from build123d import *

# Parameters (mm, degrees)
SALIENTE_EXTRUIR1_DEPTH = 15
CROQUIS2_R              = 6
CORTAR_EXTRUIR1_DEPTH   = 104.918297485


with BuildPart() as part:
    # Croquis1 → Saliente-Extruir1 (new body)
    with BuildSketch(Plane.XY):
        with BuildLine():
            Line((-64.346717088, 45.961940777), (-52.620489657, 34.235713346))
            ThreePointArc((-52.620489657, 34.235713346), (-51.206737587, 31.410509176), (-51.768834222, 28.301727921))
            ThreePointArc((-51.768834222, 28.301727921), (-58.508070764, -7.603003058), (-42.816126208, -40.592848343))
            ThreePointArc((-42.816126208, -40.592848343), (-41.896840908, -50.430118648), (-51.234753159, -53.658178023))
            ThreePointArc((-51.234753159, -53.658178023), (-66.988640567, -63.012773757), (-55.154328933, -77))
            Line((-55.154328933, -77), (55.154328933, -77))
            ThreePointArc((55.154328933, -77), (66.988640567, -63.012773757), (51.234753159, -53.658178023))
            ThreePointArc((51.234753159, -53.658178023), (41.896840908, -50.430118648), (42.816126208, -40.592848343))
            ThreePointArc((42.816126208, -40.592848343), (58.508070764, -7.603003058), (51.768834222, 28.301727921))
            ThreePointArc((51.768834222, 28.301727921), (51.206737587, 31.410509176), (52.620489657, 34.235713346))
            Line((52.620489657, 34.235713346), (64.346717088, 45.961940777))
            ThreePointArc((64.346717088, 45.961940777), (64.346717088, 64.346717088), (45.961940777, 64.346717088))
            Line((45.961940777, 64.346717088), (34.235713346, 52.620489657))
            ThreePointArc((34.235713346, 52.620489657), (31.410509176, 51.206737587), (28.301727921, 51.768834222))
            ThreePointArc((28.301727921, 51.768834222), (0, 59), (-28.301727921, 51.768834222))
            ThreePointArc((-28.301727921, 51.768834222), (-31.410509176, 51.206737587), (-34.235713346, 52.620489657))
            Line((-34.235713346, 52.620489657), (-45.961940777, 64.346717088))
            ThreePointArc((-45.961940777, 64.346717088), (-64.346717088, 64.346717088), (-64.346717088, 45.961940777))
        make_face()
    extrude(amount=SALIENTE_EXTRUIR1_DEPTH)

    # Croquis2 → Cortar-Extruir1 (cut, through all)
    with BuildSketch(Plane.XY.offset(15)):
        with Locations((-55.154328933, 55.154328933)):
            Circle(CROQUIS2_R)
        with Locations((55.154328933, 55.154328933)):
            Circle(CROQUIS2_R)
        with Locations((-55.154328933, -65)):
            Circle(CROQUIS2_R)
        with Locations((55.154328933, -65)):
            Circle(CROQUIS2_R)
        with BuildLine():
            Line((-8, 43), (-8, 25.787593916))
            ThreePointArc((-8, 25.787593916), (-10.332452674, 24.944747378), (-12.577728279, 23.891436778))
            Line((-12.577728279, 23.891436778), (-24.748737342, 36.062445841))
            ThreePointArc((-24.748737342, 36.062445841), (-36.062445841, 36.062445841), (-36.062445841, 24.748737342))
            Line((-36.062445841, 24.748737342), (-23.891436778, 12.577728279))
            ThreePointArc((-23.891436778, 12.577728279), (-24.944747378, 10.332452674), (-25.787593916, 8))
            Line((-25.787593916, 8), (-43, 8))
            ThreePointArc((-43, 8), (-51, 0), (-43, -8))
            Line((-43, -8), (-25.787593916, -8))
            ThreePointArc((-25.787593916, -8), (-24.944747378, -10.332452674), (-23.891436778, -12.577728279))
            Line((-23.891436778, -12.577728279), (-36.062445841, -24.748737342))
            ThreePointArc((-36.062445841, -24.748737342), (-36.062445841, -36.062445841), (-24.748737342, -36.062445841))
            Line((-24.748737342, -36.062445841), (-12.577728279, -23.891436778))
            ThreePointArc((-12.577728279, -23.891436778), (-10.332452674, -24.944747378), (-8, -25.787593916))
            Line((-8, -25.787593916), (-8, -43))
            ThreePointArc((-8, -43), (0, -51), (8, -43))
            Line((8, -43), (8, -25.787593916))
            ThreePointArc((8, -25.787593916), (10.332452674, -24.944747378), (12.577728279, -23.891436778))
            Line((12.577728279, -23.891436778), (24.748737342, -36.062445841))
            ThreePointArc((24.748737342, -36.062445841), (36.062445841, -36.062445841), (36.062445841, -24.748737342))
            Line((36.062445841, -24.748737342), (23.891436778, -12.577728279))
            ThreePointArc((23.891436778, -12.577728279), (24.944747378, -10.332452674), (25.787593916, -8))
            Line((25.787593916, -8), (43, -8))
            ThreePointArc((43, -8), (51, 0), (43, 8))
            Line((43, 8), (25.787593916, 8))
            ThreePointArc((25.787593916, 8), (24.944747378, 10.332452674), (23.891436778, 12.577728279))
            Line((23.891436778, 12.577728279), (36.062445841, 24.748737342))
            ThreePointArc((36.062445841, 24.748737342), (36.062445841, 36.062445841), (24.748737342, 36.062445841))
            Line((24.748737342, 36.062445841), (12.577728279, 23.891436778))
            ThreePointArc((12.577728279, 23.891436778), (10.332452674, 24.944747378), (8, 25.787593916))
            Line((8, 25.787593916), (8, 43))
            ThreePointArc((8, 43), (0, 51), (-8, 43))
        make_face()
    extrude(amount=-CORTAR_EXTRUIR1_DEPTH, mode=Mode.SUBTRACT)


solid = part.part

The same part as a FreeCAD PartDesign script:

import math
import FreeCAD as App
import Part
import Sketcher
Q = App.Units.Quantity

doc = App.newDocument("Part")
body = doc.addObject("PartDesign::Body", "Body")

# Sketch on XY plane
sketch1 = body.newObject("Sketcher::SketchObject", "Sketch")
sketch1.AttachmentSupport = (doc.getObject("XY_Plane"), [""])
sketch1.MapMode = "FlatFace"
sketch1.addGeometry([
    Part.LineSegment(App.Vector(-64.3, 46, 0), App.Vector(-52.6, 34.2, 0)),  # 0
    Part.ArcOfCircle(Part.Circle(App.Vector(-56.2, 30.7, 0), App.Vector(0, 0, 1), 5), math.radians(-29), math.radians(45)),  # 1
    Part.ArcOfCircle(Part.Circle(App.Vector(0, 0, 0), App.Vector(0, 0, 1), 59), math.radians(151), math.radians(223)),  # 2
    Part.ArcOfCircle(Part.Circle(App.Vector(-48.6, -46.1, 0), App.Vector(0, 0, 1), 8), math.radians(-109), math.radians(43)),  # 3
    Part.ArcOfCircle(Part.Circle(App.Vector(-55.2, -65, 0), App.Vector(0, 0, 1), 12), math.radians(71), math.radians(270)),  # 4
    Part.LineSegment(App.Vector(-55.2, -77, 0), App.Vector(55.2, -77, 0)),  # 5
    Part.ArcOfCircle(Part.Circle(App.Vector(55.2, -65, 0), App.Vector(0, 0, 1), 12), math.radians(-90), math.radians(109)),  # 6
    Part.ArcOfCircle(Part.Circle(App.Vector(48.6, -46.1, 0), App.Vector(0, 0, 1), 8), math.radians(137), math.radians(289)),  # 7
    Part.ArcOfCircle(Part.Circle(App.Vector(0, 0, 0), App.Vector(0, 0, 1), 59), math.radians(-43), math.radians(29)),  # 8
    Part.ArcOfCircle(Part.Circle(App.Vector(56.2, 30.7, 0), App.Vector(0, 0, 1), 5), math.radians(135), math.radians(209)),  # 9
    Part.LineSegment(App.Vector(52.6, 34.2, 0), App.Vector(64.3, 46, 0)),  # 10
    Part.ArcOfCircle(Part.Circle(App.Vector(55.2, 55.2, 0), App.Vector(0, 0, 1), 13), math.radians(-45), math.radians(135)),  # 11
    Part.LineSegment(App.Vector(46, 64.3, 0), App.Vector(34.2, 52.6, 0)),  # 12
    Part.ArcOfCircle(Part.Circle(App.Vector(30.7, 56.2, 0), App.Vector(0, 0, 1), 5), math.radians(-119), math.radians(-45)),  # 13
    Part.ArcOfCircle(Part.Circle(App.Vector(0, 0, 0), App.Vector(0, 0, 1), 59), math.radians(61), math.radians(119)),  # 14
    Part.ArcOfCircle(Part.Circle(App.Vector(-30.7, 56.2, 0), App.Vector(0, 0, 1), 5), math.radians(-135), math.radians(-61)),  # 15
    Part.LineSegment(App.Vector(-34.2, 52.6, 0), App.Vector(-46, 64.3, 0)),  # 16
    Part.ArcOfCircle(Part.Circle(App.Vector(-55.2, 55.2, 0), App.Vector(0, 0, 1), 13), math.radians(45), math.radians(225)),  # 17
], False)
sketch1.addConstraint([
    Sketcher.Constraint("Tangent", 0, 2, 1, 2),
    Sketcher.Constraint("Tangent", 1, 1, 2, 1),
    Sketcher.Constraint("Tangent", 2, 2, 3, 2),
    Sketcher.Constraint("Tangent", 3, 1, 4, 1),
    Sketcher.Constraint("Tangent", 4, 2, 5, 1),
    Sketcher.Constraint("Tangent", 5, 2, 6, 1),
    Sketcher.Constraint("Tangent", 6, 2, 7, 2),
    Sketcher.Constraint("Tangent", 7, 1, 8, 1),
    Sketcher.Constraint("Tangent", 8, 2, 9, 2),
    Sketcher.Constraint("Tangent", 9, 1, 10, 1),
    Sketcher.Constraint("Tangent", 10, 2, 11, 1),
    Sketcher.Constraint("Tangent", 11, 2, 12, 1),
    Sketcher.Constraint("Tangent", 12, 2, 13, 2),
    Sketcher.Constraint("Tangent", 13, 1, 14, 1),
    Sketcher.Constraint("Tangent", 14, 2, 15, 2),
    Sketcher.Constraint("Tangent", 15, 1, 16, 1),
    Sketcher.Constraint("Tangent", 16, 2, 17, 1),
    Sketcher.Constraint("Tangent", 17, 2, 0, 1),
    Sketcher.Constraint("Horizontal", 5),
    Sketcher.Constraint("Coincident", 2, 3, -1, 1),
    Sketcher.Constraint("Coincident", 8, 3, -1, 1),
    Sketcher.Constraint("Coincident", 14, 3, -1, 1),
    Sketcher.Constraint("Equal", 4, 6),
    Sketcher.Constraint("Equal", 3, 7),
    Sketcher.Constraint("Equal", 2, 8),
    Sketcher.Constraint("Equal", 1, 9),
    Sketcher.Constraint("Equal", 9, 13),
    Sketcher.Constraint("Equal", 8, 14),
    Sketcher.Constraint("Equal", 13, 15),
    Sketcher.Constraint("Equal", 11, 17),
    Sketcher.Constraint("Symmetric", 11, 3, 17, 3, -2),
    Sketcher.Constraint("Perpendicular", 0, 10),
    Sketcher.Constraint("Parallel", 10, 12),
    Sketcher.Constraint("Perpendicular", 12, 16),
    Sketcher.Constraint("Horizontal", 3, 3, 7, 3),
    Sketcher.Constraint("Horizontal", 1, 3, 9, 3),
    Sketcher.Constraint("Vertical", 6, 3, 11, 3),
    Sketcher.Constraint("Equal", 10, 12),
    Sketcher.Constraint("Radius", 1, Q("5 mm")),
    Sketcher.Constraint("Radius", 2, Q("59 mm")),
    Sketcher.Constraint("Radius", 3, Q("8 mm")),
    Sketcher.Constraint("Radius", 4, Q("12 mm")),
    Sketcher.Constraint("Radius", 11, Q("13 mm")),
    Sketcher.Constraint("DistanceY", 4, 3, -1, 1, Q("65 mm")),
    Sketcher.Constraint("DistanceY", 1, 1, 17, 3, Q("26.852601 mm")),
])
pad1 = body.newObject("PartDesign::Pad", "Pad")
pad1.Profile = sketch1
pad1.Length = 15

# Sketch on XY plane
sketch2 = body.newObject("Sketcher::SketchObject", "Sketch001")
sketch2.AttachmentSupport = (doc.getObject("XY_Plane"), [""])
sketch2.MapMode = "FlatFace"
sketch2.AttachmentOffset = App.Placement(App.Vector(0, 0, 15), App.Rotation())
sketch2.addGeometry([
    Part.Circle(App.Vector(-55.2, 55.2, 0), App.Vector(0, 0, 1), 6),  # 0
    Part.Circle(App.Vector(55.2, 55.2, 0), App.Vector(0, 0, 1), 6),  # 1
    Part.Circle(App.Vector(-55.2, -65, 0), App.Vector(0, 0, 1), 6),  # 2
    Part.Circle(App.Vector(55.2, -65, 0), App.Vector(0, 0, 1), 6),  # 3
    Part.LineSegment(App.Vector(-8, 43, 0), App.Vector(-8, 25.8, 0)),  # 4
    Part.ArcOfCircle(Part.Circle(App.Vector(0, 0, 0), App.Vector(0, 0, 1), 27), math.radians(107.24), math.radians(117.76)),  # 5
    Part.LineSegment(App.Vector(-12.6, 23.9, 0), App.Vector(-24.7, 36.1, 0)),  # 6
    Part.ArcOfCircle(Part.Circle(App.Vector(-30.4, 30.4, 0), App.Vector(0, 0, 1), 8), math.radians(45), math.radians(225)),  # 7
    Part.LineSegment(App.Vector(-36.1, 24.7, 0), App.Vector(-23.9, 12.6, 0)),  # 8
    Part.ArcOfCircle(Part.Circle(App.Vector(0, 0, 0), App.Vector(0, 0, 1), 27), math.radians(152.24), math.radians(162.76)),  # 9
    Part.LineSegment(App.Vector(-25.8, 8, 0), App.Vector(-43, 8, 0)),  # 10
    Part.ArcOfCircle(Part.Circle(App.Vector(-43, 0, 0), App.Vector(0, 0, 1), 8), math.radians(90), math.radians(270)),  # 11
    Part.LineSegment(App.Vector(-43, -8, 0), App.Vector(-25.8, -8, 0)),  # 12
    Part.ArcOfCircle(Part.Circle(App.Vector(0, 0, 0), App.Vector(0, 0, 1), 27), math.radians(-162.76), math.radians(-152.24)),  # 13
    Part.LineSegment(App.Vector(-23.9, -12.6, 0), App.Vector(-36.1, -24.7, 0)),  # 14
    Part.ArcOfCircle(Part.Circle(App.Vector(-30.4, -30.4, 0), App.Vector(0, 0, 1), 8), math.radians(135), math.radians(315)),  # 15
    Part.LineSegment(App.Vector(-24.7, -36.1, 0), App.Vector(-12.6, -23.9, 0)),  # 16
    Part.ArcOfCircle(Part.Circle(App.Vector(0, 0, 0), App.Vector(0, 0, 1), 27), math.radians(-117.76), math.radians(-107.24)),  # 17
    Part.LineSegment(App.Vector(-8, -25.8, 0), App.Vector(-8, -43, 0)),  # 18
    Part.ArcOfCircle(Part.Circle(App.Vector(0, -43, 0), App.Vector(0, 0, 1), 8), math.radians(180), math.radians(360)),  # 19
    Part.LineSegment(App.Vector(8, -43, 0), App.Vector(8, -25.8, 0)),  # 20
    Part.ArcOfCircle(Part.Circle(App.Vector(0, 0, 0), App.Vector(0, 0, 1), 27), math.radians(-72.76), math.radians(-62.24)),  # 21
    Part.LineSegment(App.Vector(12.6, -23.9, 0), App.Vector(24.7, -36.1, 0)),  # 22
    Part.ArcOfCircle(Part.Circle(App.Vector(30.4, -30.4, 0), App.Vector(0, 0, 1), 8), math.radians(-135), math.radians(45)),  # 23
    Part.LineSegment(App.Vector(36.1, -24.7, 0), App.Vector(23.9, -12.6, 0)),  # 24
    Part.ArcOfCircle(Part.Circle(App.Vector(0, 0, 0), App.Vector(0, 0, 1), 27), math.radians(-27.76), math.radians(-17.24)),  # 25
    Part.LineSegment(App.Vector(25.8, -8, 0), App.Vector(43, -8, 0)),  # 26
    Part.ArcOfCircle(Part.Circle(App.Vector(43, 0, 0), App.Vector(0, 0, 1), 8), math.radians(-90), math.radians(90)),  # 27
    Part.LineSegment(App.Vector(43, 8, 0), App.Vector(25.8, 8, 0)),  # 28
    Part.ArcOfCircle(Part.Circle(App.Vector(0, 0, 0), App.Vector(0, 0, 1), 27), math.radians(17.24), math.radians(27.76)),  # 29
    Part.LineSegment(App.Vector(23.9, 12.6, 0), App.Vector(36.1, 24.7, 0)),  # 30
    Part.ArcOfCircle(Part.Circle(App.Vector(30.4, 30.4, 0), App.Vector(0, 0, 1), 8), math.radians(-45), math.radians(135)),  # 31
    Part.LineSegment(App.Vector(24.7, 36.1, 0), App.Vector(12.6, 23.9, 0)),  # 32
    Part.ArcOfCircle(Part.Circle(App.Vector(0, 0, 0), App.Vector(0, 0, 1), 27), math.radians(62.24), math.radians(72.76)),  # 33
    Part.LineSegment(App.Vector(8, 25.8, 0), App.Vector(8, 43, 0)),  # 34
    Part.ArcOfCircle(Part.Circle(App.Vector(0, 43, 0), App.Vector(0, 0, 1), 8), math.radians(0), math.radians(180)),  # 35
], False)
sketch2.addConstraint([
    Sketcher.Constraint("Coincident", 4, 2, 5, 1),
    Sketcher.Constraint("Coincident", 5, 2, 6, 1),
    Sketcher.Constraint("Tangent", 6, 2, 7, 1),
    Sketcher.Constraint("Tangent", 7, 2, 8, 1),
    Sketcher.Constraint("Coincident", 8, 2, 9, 1),
    Sketcher.Constraint("Coincident", 9, 2, 10, 1),
    Sketcher.Constraint("Tangent", 10, 2, 11, 1),
    Sketcher.Constraint("Tangent", 11, 2, 12, 1),
    Sketcher.Constraint("Coincident", 12, 2, 13, 1),
    Sketcher.Constraint("Coincident", 13, 2, 14, 1),
    Sketcher.Constraint("Tangent", 14, 2, 15, 1),
    Sketcher.Constraint("Tangent", 15, 2, 16, 1),
    Sketcher.Constraint("Coincident", 16, 2, 17, 1),
    Sketcher.Constraint("Coincident", 17, 2, 18, 1),
    Sketcher.Constraint("Tangent", 18, 2, 19, 1),
    Sketcher.Constraint("Tangent", 19, 2, 20, 1),
    Sketcher.Constraint("Coincident", 20, 2, 21, 1),
    Sketcher.Constraint("Coincident", 21, 2, 22, 1),
    Sketcher.Constraint("Tangent", 22, 2, 23, 1),
    Sketcher.Constraint("Tangent", 23, 2, 24, 1),
    Sketcher.Constraint("Coincident", 24, 2, 25, 1),
    Sketcher.Constraint("Coincident", 25, 2, 26, 1),
    Sketcher.Constraint("Tangent", 26, 2, 27, 1),
    Sketcher.Constraint("Tangent", 27, 2, 28, 1),
    Sketcher.Constraint("Coincident", 28, 2, 29, 1),
    Sketcher.Constraint("Coincident", 29, 2, 30, 1),
    Sketcher.Constraint("Tangent", 30, 2, 31, 1),
    Sketcher.Constraint("Tangent", 31, 2, 32, 1),
    Sketcher.Constraint("Coincident", 32, 2, 33, 1),
    Sketcher.Constraint("Coincident", 33, 2, 34, 1),
    Sketcher.Constraint("Tangent", 34, 2, 35, 1),
    Sketcher.Constraint("Tangent", 35, 2, 4, 1),
    Sketcher.Constraint("Vertical", 4),
    Sketcher.Constraint("Horizontal", 10),
    Sketcher.Constraint("Horizontal", 12),
    Sketcher.Constraint("Vertical", 18),
    Sketcher.Constraint("Vertical", 20),
    Sketcher.Constraint("Horizontal", 26),
    Sketcher.Constraint("Horizontal", 28),
    Sketcher.Constraint("Vertical", 34),
    Sketcher.Constraint("Coincident", 5, 3, -1, 1),
    Sketcher.Constraint("Coincident", 9, 3, -1, 1),
    Sketcher.Constraint("Coincident", 13, 3, -1, 1),
    Sketcher.Constraint("Coincident", 17, 3, -1, 1),
    Sketcher.Constraint("Coincident", 21, 3, -1, 1),
    Sketcher.Constraint("Coincident", 25, 3, -1, 1),
    Sketcher.Constraint("Coincident", 29, 3, -1, 1),
    Sketcher.Constraint("Coincident", 33, 3, -1, 1),
    Sketcher.Constraint("Equal", 0, 1),
    Sketcher.Constraint("Equal", 1, 2),
    Sketcher.Constraint("Equal", 2, 3),
    Sketcher.Constraint("Equal", 5, 9),
    Sketcher.Constraint("Equal", 7, 11),
    Sketcher.Constraint("Equal", 9, 13),
    Sketcher.Constraint("Equal", 11, 15),
    Sketcher.Constraint("Equal", 13, 17),
    Sketcher.Constraint("Equal", 15, 19),
    Sketcher.Constraint("Equal", 17, 21),
    Sketcher.Constraint("Equal", 19, 23),
    Sketcher.Constraint("Equal", 21, 25),
    Sketcher.Constraint("Equal", 23, 27),
    Sketcher.Constraint("Equal", 25, 29),
    Sketcher.Constraint("Equal", 27, 31),
    Sketcher.Constraint("Equal", 29, 33),
    Sketcher.Constraint("Equal", 31, 35),
    Sketcher.Constraint("Symmetric", 7, 3, 23, 3, -1, 1),
    Sketcher.Constraint("Symmetric", 11, 3, 27, 3, -1, 1),
    Sketcher.Constraint("Symmetric", 15, 3, 31, 3, -1, 1),
    Sketcher.Constraint("Symmetric", 19, 3, 35, 3, -1, 1),
    Sketcher.Constraint("Symmetric", 0, 3, 1, 3, -2),
    Sketcher.Constraint("Symmetric", 2, 3, 3, 3, -2),
    Sketcher.Constraint("Symmetric", 15, 3, 23, 3, -2),
    Sketcher.Constraint("PointOnObject", 11, 3, -1),
    Sketcher.Constraint("PointOnObject", 19, 3, -2),
    Sketcher.Constraint("Parallel", 6, 8),
    Sketcher.Constraint("Perpendicular", 8, 14),
    Sketcher.Constraint("Parallel", 14, 16),
    Sketcher.Constraint("Perpendicular", 16, 22),
    Sketcher.Constraint("Parallel", 22, 24),
    Sketcher.Constraint("Perpendicular", 24, 30),
    Sketcher.Constraint("Parallel", 30, 32),
    Sketcher.Constraint("Horizontal", 16, 2, 21, 2),
    Sketcher.Constraint("Vertical", 0, 3, 2, 3),
    Sketcher.Constraint("Equal", 28, 4),
    Sketcher.Constraint("Equal", 6, 8),
    Sketcher.Constraint("Diameter", 0, Q("12 mm")),
    Sketcher.Constraint("Radius", 5, Q("27 mm")),
    Sketcher.Constraint("Radius", 7, Q("8 mm")),
    Sketcher.Constraint("DistanceY", 2, 3, -1, 1, Q("65 mm")),
    Sketcher.Constraint("DistanceX", 11, 3, -1, 1, Q("43 mm")),
    Sketcher.Constraint("DistanceY", 5, 2, 7, 2, Q("0.857301 mm")),
    Sketcher.Constraint("DistanceX", 0, 3, -1, 1, Q("55.154329 mm")),
    Sketcher.Constraint("DistanceY", -1, 1, 0, 3, Q("55.154329 mm")),
])
pocket1 = body.newObject("PartDesign::Pocket", "Pocket")
pocket1.Profile = sketch2
pocket1.Type = "ThroughAll"

doc.recompute()
